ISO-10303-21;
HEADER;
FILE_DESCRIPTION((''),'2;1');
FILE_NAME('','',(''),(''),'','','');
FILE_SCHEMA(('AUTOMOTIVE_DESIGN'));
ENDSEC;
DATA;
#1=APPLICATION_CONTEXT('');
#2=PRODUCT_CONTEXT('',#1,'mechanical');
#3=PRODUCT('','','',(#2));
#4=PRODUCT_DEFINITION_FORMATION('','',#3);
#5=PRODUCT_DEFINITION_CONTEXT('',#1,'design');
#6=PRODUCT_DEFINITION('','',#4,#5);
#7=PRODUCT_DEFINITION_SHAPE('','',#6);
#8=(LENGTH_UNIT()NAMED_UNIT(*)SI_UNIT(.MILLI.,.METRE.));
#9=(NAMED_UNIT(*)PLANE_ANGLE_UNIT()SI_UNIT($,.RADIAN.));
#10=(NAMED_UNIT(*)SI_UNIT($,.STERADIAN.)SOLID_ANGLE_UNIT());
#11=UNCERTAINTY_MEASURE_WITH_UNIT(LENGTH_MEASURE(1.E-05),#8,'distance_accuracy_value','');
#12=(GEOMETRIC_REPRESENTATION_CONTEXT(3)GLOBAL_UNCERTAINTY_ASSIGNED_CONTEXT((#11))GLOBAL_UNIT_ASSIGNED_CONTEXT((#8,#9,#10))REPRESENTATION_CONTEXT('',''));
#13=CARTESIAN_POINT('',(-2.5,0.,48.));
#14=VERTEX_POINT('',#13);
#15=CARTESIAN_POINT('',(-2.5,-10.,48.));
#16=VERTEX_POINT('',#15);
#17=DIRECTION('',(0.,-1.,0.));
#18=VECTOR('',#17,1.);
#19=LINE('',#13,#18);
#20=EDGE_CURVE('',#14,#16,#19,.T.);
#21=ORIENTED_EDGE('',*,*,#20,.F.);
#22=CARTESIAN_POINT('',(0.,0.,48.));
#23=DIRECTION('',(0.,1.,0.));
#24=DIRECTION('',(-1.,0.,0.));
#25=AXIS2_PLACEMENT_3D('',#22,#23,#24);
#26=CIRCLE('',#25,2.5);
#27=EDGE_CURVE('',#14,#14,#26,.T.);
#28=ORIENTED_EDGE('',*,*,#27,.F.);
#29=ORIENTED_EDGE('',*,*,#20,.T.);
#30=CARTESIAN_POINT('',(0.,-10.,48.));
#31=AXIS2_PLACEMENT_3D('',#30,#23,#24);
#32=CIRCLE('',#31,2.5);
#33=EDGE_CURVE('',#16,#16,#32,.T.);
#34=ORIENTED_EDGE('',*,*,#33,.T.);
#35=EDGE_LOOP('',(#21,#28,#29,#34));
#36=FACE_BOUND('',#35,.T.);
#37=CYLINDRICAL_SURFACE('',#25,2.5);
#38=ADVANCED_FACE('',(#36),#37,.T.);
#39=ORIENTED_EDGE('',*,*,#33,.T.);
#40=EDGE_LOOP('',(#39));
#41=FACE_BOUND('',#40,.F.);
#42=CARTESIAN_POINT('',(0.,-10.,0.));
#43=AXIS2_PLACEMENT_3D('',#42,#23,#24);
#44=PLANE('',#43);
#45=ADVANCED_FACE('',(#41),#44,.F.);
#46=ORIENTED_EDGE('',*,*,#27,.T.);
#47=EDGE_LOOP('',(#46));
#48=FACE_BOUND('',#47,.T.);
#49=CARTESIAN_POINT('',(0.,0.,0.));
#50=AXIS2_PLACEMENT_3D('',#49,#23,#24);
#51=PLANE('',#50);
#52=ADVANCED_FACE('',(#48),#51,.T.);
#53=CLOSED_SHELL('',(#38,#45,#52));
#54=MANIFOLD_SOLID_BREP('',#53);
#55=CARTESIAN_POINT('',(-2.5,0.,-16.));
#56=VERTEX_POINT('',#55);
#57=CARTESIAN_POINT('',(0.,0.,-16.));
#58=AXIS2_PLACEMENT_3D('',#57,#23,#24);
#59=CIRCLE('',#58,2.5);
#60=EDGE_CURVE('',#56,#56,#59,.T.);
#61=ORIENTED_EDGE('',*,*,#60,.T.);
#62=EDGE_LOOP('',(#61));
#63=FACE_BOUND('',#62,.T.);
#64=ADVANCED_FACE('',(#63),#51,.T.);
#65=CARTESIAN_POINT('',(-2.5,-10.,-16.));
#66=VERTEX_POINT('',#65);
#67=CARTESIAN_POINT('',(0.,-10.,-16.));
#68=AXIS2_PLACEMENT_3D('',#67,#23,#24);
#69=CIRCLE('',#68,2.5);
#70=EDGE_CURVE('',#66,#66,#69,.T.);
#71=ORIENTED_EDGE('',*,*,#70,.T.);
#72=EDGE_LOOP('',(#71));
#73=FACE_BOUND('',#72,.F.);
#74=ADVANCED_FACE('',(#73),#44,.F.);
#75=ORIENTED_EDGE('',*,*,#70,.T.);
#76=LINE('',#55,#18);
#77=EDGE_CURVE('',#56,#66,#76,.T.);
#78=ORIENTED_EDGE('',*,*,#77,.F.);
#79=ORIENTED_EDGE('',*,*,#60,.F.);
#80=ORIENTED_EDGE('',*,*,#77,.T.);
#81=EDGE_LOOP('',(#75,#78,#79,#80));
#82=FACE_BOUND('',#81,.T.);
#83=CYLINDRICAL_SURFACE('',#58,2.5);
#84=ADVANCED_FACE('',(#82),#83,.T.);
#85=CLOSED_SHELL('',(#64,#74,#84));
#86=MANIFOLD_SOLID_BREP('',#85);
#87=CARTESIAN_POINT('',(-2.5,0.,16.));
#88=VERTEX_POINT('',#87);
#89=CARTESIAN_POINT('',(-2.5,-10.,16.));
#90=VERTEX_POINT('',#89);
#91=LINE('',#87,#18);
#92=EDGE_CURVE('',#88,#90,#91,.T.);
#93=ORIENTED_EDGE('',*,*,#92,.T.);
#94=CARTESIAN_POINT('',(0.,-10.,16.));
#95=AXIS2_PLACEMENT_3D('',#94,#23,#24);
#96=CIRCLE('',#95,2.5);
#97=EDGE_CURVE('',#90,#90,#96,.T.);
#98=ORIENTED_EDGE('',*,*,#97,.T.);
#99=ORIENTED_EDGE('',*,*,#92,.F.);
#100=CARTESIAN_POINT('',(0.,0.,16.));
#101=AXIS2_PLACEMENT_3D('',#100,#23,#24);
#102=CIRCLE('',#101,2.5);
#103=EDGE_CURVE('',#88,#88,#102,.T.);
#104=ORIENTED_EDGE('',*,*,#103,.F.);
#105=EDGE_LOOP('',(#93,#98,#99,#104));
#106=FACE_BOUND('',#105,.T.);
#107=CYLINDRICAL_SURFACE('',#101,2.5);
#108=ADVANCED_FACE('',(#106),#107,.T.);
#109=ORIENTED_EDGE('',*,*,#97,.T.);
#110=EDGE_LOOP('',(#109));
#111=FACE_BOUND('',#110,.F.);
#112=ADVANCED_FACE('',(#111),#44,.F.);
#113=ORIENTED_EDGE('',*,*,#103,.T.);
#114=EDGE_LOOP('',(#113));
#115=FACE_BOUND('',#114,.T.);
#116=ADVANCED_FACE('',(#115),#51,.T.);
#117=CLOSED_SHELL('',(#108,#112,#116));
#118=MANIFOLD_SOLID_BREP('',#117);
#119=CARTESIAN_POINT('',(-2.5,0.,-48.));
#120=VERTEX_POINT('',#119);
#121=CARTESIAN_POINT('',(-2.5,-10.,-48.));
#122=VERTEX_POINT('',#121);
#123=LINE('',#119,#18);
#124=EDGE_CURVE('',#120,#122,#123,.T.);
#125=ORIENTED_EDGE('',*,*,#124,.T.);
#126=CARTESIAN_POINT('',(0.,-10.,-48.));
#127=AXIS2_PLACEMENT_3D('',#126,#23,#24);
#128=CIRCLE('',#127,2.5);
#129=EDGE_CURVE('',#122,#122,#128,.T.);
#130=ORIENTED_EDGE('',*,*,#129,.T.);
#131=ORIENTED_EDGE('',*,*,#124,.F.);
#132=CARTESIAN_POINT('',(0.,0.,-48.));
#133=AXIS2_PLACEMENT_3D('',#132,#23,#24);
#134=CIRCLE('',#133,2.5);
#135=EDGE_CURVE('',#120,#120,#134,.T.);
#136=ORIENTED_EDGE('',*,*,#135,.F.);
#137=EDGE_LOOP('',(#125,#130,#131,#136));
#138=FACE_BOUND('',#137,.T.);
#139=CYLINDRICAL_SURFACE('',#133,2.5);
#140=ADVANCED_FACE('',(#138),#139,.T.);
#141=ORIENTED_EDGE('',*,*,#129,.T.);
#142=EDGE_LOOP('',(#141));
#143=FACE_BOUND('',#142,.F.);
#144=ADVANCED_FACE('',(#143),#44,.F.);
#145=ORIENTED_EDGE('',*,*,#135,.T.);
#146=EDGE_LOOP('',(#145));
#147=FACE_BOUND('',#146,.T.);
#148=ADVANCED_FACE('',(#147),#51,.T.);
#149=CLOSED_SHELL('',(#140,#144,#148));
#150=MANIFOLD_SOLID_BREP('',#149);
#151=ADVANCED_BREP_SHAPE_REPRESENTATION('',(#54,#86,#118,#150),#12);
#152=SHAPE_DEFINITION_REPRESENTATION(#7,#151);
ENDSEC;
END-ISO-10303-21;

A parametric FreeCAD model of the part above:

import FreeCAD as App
import Part
import Sketcher
from FreeCAD import Vector

doc = App.newDocument("Part")
body = doc.addObject("PartDesign::Body", "Body")
body.AllowCompound = True

sketch1 = body.newObject("Sketcher::SketchObject", "Sketch")
sketch1.AttachmentSupport = (doc.getObject("XZ_Plane"), [""])
sketch1.MapMode = "FlatFace"
sketch1.addGeometry(Part.Circle(Vector(0, 48, 0), Vector(0, 0, 1), 2.5), False)
sketch1.addGeometry(Part.Circle(Vector(0, 16, 0), Vector(0, 0, 1), 2.5), False)
sketch1.addGeometry(Part.Circle(Vector(0, -16, 0), Vector(0, 0, 1), 2.5), False)
sketch1.addGeometry(Part.Circle(Vector(0, -48, 0), Vector(0, 0, 1), 2.5), False)
sketch1.addConstraint(Sketcher.Constraint("Equal", 0, 1))
sketch1.addConstraint(Sketcher.Constraint("Equal", 1, 2))
sketch1.addConstraint(Sketcher.Constraint("Equal", 2, 3))
sketch1.addConstraint(Sketcher.Constraint("Symmetric", 1, 3, 2, 3, -1, 1))
sketch1.addConstraint(Sketcher.Constraint("Symmetric", 0, 3, 3, 3, -1, 1))
sketch1.addConstraint(Sketcher.Constraint("PointOnObject", 0, 3, -2))
sketch1.addConstraint(Sketcher.Constraint("PointOnObject", 1, 3, -2))
sketch1.addConstraint(Sketcher.Constraint("Diameter", 0, 5.0))
sketch1.addConstraint(Sketcher.Constraint("DistanceY", -1, 1, 1, 3, 16.0))
sketch1.addConstraint(Sketcher.Constraint("DistanceY", 1, 3, 0, 3, 32.0))
pad1 = body.newObject("PartDesign::Pad", "Pad")
pad1.Profile = sketch1
pad1.Length = 10

doc.recompute()
